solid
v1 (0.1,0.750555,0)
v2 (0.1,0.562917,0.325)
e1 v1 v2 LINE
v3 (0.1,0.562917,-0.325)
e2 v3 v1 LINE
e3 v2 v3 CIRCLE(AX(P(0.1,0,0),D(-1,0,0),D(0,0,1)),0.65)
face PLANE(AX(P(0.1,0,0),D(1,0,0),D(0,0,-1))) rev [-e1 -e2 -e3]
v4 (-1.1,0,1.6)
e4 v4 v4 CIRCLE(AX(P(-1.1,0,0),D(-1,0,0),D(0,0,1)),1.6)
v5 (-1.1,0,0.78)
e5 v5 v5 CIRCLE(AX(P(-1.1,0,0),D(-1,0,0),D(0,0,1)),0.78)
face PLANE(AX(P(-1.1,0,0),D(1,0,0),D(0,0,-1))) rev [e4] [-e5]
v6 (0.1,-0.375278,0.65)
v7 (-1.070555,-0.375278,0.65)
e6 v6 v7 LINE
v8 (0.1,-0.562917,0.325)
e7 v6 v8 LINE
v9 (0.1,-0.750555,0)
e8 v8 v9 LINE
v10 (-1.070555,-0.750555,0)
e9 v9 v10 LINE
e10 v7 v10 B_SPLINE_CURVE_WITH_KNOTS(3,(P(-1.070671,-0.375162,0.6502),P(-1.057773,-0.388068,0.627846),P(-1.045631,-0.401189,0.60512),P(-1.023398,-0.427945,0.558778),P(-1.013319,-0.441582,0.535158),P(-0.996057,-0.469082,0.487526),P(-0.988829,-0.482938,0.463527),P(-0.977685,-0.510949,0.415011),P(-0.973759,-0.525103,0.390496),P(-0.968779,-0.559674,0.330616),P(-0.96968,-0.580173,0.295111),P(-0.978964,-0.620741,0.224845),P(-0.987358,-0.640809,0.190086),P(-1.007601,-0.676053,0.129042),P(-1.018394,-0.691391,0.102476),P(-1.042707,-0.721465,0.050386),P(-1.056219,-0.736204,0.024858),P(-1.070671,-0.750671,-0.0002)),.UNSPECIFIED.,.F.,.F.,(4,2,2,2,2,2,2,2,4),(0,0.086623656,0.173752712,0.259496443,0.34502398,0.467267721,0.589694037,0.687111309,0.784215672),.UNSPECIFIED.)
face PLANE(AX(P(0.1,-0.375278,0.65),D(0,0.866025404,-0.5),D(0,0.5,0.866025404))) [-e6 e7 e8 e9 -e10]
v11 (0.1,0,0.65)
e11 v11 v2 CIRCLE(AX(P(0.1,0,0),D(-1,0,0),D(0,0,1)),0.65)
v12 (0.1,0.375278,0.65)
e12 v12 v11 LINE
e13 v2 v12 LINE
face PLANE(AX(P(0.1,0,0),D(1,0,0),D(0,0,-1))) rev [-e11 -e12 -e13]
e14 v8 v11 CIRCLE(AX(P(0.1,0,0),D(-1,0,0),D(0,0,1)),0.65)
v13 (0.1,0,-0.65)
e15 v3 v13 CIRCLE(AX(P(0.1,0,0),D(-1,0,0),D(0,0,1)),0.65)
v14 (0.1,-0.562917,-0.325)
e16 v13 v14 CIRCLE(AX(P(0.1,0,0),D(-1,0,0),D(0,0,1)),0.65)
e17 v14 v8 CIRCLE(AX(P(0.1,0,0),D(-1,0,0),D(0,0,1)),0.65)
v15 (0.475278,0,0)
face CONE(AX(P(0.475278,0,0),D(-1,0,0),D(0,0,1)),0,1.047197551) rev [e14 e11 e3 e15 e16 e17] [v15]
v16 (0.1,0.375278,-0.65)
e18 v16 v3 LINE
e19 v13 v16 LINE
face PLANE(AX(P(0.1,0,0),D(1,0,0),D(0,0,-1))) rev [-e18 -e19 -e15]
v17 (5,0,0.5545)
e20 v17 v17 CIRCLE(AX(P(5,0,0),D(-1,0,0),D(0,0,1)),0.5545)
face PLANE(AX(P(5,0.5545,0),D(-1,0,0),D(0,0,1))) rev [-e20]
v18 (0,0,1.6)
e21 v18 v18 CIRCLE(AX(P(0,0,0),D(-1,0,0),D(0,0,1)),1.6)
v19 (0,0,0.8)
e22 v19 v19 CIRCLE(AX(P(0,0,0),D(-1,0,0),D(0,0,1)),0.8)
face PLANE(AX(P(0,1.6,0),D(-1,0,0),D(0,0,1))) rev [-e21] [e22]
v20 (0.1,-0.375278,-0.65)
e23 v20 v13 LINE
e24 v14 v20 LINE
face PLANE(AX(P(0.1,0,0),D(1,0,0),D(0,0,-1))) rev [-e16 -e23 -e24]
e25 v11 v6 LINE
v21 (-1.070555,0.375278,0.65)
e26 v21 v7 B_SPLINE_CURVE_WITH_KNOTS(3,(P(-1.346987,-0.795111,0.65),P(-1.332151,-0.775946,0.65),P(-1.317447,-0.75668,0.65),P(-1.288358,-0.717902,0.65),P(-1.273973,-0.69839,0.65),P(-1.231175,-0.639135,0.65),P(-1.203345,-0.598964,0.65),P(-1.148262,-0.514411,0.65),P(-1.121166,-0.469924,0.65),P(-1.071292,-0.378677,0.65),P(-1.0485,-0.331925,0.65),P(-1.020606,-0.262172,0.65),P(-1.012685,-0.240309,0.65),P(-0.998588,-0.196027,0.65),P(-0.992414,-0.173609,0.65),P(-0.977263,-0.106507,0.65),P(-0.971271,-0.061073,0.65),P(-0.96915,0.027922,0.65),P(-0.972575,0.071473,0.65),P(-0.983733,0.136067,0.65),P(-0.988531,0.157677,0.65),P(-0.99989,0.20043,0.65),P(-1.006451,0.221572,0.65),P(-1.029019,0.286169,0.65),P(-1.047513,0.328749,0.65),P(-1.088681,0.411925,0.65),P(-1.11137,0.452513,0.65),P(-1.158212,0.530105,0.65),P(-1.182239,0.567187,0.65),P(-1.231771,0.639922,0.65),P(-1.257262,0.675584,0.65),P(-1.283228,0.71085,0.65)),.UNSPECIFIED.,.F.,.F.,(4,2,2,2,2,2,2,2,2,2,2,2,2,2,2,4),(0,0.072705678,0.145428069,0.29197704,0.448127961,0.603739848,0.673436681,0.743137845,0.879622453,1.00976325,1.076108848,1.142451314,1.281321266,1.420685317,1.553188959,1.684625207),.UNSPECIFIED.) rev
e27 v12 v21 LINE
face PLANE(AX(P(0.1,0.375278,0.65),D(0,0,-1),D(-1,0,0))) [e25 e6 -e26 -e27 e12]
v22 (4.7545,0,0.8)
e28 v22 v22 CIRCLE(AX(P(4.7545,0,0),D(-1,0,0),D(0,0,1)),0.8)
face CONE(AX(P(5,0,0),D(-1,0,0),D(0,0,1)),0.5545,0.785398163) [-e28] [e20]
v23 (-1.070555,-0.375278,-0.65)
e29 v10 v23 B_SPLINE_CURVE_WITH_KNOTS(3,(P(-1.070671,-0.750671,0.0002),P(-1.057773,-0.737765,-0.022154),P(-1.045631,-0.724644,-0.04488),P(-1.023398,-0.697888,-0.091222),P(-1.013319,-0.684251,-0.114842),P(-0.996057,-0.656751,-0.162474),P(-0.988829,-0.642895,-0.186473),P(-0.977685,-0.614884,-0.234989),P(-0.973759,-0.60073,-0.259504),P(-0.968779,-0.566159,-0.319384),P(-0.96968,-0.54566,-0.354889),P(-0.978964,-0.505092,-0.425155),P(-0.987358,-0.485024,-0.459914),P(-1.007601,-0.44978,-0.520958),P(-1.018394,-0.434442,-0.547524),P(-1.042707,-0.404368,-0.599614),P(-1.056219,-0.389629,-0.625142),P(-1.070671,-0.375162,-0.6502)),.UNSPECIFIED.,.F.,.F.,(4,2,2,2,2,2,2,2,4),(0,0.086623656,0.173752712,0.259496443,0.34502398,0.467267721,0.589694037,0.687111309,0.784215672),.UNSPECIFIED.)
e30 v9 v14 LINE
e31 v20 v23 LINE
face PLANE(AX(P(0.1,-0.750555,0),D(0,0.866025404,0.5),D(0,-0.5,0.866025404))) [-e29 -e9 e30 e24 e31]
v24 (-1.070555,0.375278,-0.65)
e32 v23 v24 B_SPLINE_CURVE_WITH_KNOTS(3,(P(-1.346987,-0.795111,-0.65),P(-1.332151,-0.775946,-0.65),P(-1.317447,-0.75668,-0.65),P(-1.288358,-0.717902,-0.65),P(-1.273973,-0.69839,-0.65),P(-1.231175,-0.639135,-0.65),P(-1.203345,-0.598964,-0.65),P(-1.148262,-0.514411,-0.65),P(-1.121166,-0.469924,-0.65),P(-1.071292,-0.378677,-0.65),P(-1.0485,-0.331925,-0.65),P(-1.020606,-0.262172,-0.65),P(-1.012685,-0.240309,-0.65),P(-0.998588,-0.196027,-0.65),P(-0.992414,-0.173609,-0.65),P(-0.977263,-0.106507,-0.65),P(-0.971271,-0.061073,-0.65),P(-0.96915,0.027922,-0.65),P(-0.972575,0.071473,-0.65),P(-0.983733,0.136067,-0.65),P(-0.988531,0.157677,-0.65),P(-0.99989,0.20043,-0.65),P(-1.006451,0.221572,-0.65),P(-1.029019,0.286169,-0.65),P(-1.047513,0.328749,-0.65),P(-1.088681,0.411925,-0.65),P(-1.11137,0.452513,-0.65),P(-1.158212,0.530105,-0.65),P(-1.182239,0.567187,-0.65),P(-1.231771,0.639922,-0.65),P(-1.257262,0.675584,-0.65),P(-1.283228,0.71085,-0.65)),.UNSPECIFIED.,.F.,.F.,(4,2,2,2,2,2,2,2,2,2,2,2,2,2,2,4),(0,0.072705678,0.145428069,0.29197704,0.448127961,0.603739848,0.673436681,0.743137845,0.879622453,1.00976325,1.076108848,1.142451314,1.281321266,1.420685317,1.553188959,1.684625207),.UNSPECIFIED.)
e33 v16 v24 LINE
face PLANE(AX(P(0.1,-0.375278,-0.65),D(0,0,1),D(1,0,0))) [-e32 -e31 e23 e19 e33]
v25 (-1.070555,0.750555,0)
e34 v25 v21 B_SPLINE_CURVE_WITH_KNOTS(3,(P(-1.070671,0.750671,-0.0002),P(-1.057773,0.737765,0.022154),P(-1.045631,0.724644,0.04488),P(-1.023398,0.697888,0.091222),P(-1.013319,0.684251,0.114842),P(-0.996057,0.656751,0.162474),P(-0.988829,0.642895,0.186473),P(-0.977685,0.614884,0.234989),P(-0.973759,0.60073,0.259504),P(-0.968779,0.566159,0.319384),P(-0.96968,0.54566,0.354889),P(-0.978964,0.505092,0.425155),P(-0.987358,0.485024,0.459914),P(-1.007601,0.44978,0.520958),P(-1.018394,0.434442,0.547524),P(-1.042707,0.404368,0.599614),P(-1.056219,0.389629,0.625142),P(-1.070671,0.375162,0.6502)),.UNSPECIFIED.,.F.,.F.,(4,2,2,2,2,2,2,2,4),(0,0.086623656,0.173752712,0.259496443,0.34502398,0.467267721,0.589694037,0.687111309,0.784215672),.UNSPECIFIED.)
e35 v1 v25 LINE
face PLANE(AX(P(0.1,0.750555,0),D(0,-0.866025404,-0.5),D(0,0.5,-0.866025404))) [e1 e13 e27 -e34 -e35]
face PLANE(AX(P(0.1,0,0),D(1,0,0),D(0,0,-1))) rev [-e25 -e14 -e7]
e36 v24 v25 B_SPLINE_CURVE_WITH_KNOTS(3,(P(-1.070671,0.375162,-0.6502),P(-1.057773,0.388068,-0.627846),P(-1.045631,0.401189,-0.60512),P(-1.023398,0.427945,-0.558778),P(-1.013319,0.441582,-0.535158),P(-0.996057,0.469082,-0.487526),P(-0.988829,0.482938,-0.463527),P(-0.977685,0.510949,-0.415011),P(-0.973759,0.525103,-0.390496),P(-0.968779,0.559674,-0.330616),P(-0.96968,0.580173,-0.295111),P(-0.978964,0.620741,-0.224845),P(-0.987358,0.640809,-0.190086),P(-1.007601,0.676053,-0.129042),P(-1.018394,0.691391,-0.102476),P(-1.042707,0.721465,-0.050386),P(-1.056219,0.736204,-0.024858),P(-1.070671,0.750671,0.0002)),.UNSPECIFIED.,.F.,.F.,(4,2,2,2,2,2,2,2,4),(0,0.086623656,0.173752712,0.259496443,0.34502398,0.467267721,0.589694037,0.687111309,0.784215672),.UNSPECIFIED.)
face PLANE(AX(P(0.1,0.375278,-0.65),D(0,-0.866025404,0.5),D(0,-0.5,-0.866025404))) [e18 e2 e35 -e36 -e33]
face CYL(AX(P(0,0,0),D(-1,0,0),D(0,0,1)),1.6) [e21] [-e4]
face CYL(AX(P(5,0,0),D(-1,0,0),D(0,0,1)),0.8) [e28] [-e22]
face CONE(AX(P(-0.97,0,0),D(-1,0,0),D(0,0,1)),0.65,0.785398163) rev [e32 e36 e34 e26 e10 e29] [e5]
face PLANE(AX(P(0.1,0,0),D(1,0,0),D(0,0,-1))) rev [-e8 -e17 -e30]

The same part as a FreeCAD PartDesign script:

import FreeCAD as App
import Part
import Sketcher
from FreeCAD import Vector
Q = App.Units.Quantity


def add_polygon(sketch, points):
    """Adds a closed chain of lines whose ends are joined by coincident constraints."""
    first, n = sketch.GeometryCount, len(points)
    for a, b in zip(points, points[1:] + points[:1]):
        sketch.addGeometry(Part.LineSegment(App.Vector(*a, 0), App.Vector(*b, 0)), False)
    for i in range(n):
        sketch.addConstraint(Sketcher.Constraint("Coincident", first + i, 2, first + (i + 1) % n, 1))

doc = App.newDocument("Part")
body = doc.addObject("PartDesign::Body", "Body")

# Sketch on XY plane
sketch1 = doc.addObject("Sketcher::SketchObject", "Sketch")
body.addObject(sketch1)
sketch1.AttachmentSupport = (doc.XY_Plane, [""])
sketch1.MapMode = "FlatFace"
add_polygon(sketch1, [(0, 0.8), (0, 0), (5, 0), (5, 0.55), (4.75, 0.8)])  # lines 0-4
sketch1.addConstraint([
    Sketcher.Constraint("Vertical", 0),
    Sketcher.Constraint("Horizontal", 1),
    Sketcher.Constraint("Vertical", 2),
    Sketcher.Constraint("Horizontal", 4),
    Sketcher.Constraint("Coincident", 0, 2, -1, 1),
    Sketcher.Constraint("DistanceX", 1, 1, 1, 2, 5.0),
    Sketcher.Constraint("Angle", 3, Q("135 deg")),
    Sketcher.Constraint("DistanceY", 0, 2, 0, 1, 0.8),
    Sketcher.Constraint("DistanceX", 4, 2, 4, 1, 4.7545),
])
revolution = doc.addObject("PartDesign::Revolution", "Revolution")
body.addObject(revolution)
revolution.Profile = sketch1
revolution.ReferenceAxis = (sketch1, ["H_Axis"])
revolution.Angle = 360

# Sketch on XY plane
sketch2 = doc.addObject("Sketcher::SketchObject", "Sketch001")
body.addObject(sketch2)
sketch2.AttachmentSupport = (doc.XY_Plane, [""])
sketch2.MapMode = "FlatFace"
add_polygon(sketch2, [(-1.1, 1.6), (-1.1, 0), (0, 0), (0, 1.6)])  # lines 0-3
sketch2.addConstraint([
    Sketcher.Constraint("Vertical", 0),
    Sketcher.Constraint("Horizontal", 1),
    Sketcher.Constraint("Vertical", 2),
    Sketcher.Constraint("Horizontal", 3),
    Sketcher.Constraint("Coincident", 1, 2, -1, 1),
    Sketcher.Constraint("DistanceX", 1, 1, 1, 2, 1.1),
    Sketcher.Constraint("DistanceY", 0, 2, 0, 1, 1.6),
])
revolution2 = doc.addObject("PartDesign::Revolution", "Revolution001")
body.addObject(revolution2)
revolution2.Profile = sketch2
revolution2.ReferenceAxis = (sketch2, ["H_Axis"])
revolution2.Angle = 360

# Sketch on XY plane
sketch3 = doc.addObject("Sketcher::SketchObject", "Sketch002")
body.addObject(sketch3)
sketch3.AttachmentSupport = (doc.XY_Plane, [""])
sketch3.MapMode = "FlatFace"
add_polygon(sketch3, [(-1.1, 0.78), (-1.1, 0), (0.48, 0), (0.1, 0.65), (-0.97, 0.65)])  # lines 0-4
sketch3.addConstraint([
    Sketcher.Constraint("Vertical", 0),
    Sketcher.Constraint("Horizontal", 1),
    Sketcher.Constraint("Horizontal", 3),
    Sketcher.Constraint("PointOnObject", 0, 2, -1),
    Sketcher.Constraint("Angle", 2, Q("120 deg")),
    Sketcher.Constraint("Angle", 4, Q("135 deg")),
    Sketcher.Constraint("DistanceX", 3, 2, 3, 1, 1.07),
    Sketcher.Constraint("DistanceY", 0, 2, 0, 1, 0.78),
    Sketcher.Constraint("DistanceX", 0, 2, -1, 1, 1.1),
    Sketcher.Constraint("DistanceX", -1, 1, 2, 2, 0.1),
])
groove = doc.addObject("PartDesign::Groove", "Groove")
body.addObject(groove)
groove.Profile = sketch3
groove.ReferenceAxis = (sketch3, ["H_Axis"])
groove.Angle = 360

# Sketch on YZ plane
sketch4 = doc.addObject("Sketcher::SketchObject", "Sketch003")
body.addObject(sketch4)
sketch4.AttachmentSupport = (doc.YZ_Plane, [""])
sketch4.MapMode = "FlatFace"
sketch4.AttachmentOffset = App.Placement(Vector(0, 0, -1.1), App.Rotation())
add_polygon(sketch4, [(-0.4, 0.7), (-0.8, 0), (-0.4, -0.7), (0.4, -0.7), (0.8, 0), (0.4, 0.7)])  # lines 0-5
sketch4.addConstraint([
    Sketcher.Constraint("Horizontal", 2),
    Sketcher.Constraint("Horizontal", 5),
    Sketcher.Constraint("Symmetric", 0, 2, 3, 2, -1, 1),
    Sketcher.Constraint("Symmetric", 1, 2, 4, 2, -1, 1),
    Sketcher.Constraint("PointOnObject", 0, 2, -1),
    Sketcher.Constraint("Parallel", 0, 3),
    Sketcher.Constraint("Vertical", 2, 2, 4, 2),
    Sketcher.Constraint("Angle", 0, Q("-120 deg")),
    Sketcher.Constraint("DistanceY", 2, 2, 4, 2, 1.3),
    Sketcher.Constraint("DistanceX", 2, 1, 2, 2, 0.750555),
])
pocket1 = doc.addObject("PartDesign::Pocket", "Pocket")
body.addObject(pocket1)
pocket1.Profile = sketch4
pocket1.Length = 1.2
pocket1.Reversed = True

doc.recompute()
